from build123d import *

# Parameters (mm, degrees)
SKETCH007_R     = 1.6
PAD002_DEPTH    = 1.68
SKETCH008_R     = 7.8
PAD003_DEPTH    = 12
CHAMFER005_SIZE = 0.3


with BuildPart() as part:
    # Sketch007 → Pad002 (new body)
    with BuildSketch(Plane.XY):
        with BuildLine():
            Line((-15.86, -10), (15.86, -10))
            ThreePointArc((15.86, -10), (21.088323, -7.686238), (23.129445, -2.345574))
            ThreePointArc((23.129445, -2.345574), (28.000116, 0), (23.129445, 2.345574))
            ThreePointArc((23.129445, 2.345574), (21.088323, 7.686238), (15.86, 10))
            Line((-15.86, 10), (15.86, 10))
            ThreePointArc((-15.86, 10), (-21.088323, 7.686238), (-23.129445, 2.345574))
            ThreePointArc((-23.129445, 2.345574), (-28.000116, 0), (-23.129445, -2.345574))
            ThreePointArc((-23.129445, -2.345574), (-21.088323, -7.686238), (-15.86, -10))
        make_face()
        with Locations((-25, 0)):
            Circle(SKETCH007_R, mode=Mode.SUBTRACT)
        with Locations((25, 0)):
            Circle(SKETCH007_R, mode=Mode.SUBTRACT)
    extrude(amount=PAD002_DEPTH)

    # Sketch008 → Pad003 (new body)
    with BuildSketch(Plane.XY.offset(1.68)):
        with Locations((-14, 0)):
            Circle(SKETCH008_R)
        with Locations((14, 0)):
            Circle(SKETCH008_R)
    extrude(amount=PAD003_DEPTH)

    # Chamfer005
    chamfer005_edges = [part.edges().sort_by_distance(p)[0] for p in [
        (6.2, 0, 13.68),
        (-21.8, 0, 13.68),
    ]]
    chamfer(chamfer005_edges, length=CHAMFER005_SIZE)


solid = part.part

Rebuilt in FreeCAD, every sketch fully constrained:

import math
import FreeCAD as App
import Part
import Sketcher
from FreeCAD import Vector
Q = App.Units.Quantity


def edges_at(feature, points):
    """Names of the edges that pass closest to the given points."""
    edges = feature.Shape.Edges
    near = lambda p: min(range(len(edges)), key=lambda i: edges[i].distToShape(Part.Vertex(*p))[0])
    return sorted({f"Edge{near(p) + 1}" for p in points})

doc = App.newDocument("Part")
params = doc.addObject("Spreadsheet::Sheet", "Params")
for row, (alias, value) in enumerate([
    ("sketch1_diameter", "3.2 mm"),
    ("sketch1_width", "31.72 mm"),
    ("pad1_length", "1.68 mm"),
    ("sketch2_diameter", "15.6 mm"),
    ("pad2_length", "12 mm"),
    ("chamfer_size", "0.3 mm"),
], start=1):
    params.set(f"A{row}", alias)
    params.set(f"B{row}", "=" + value)
    params.setAlias(f"B{row}", alias)

body = doc.addObject("PartDesign::Body", "Body")

# Sketch on XY plane
sketch1 = doc.addObject("Sketcher::SketchObject", "Sketch")
body.addObject(sketch1)
sketch1.AttachmentSupport = (doc.XY_Plane, [""])
sketch1.MapMode = "FlatFace"
sketch1.addGeometry(Part.LineSegment(Vector(-15.9, -10, 0), Vector(15.9, -10, 0)), False)
sketch1.addGeometry(Part.ArcOfCircle(Part.Circle(Vector(15.7, -2.6, 0), Vector(0, 0, 1), 7.4), math.radians(-89), math.radians(2)), False)
sketch1.addGeometry(Part.ArcOfCircle(Part.Circle(Vector(25, 0, 0), Vector(0, 0, 1), 3), math.radians(-129), math.radians(129)), False)
sketch1.addGeometry(Part.ArcOfCircle(Part.Circle(Vector(15.7, 2.6, 0), Vector(0, 0, 1), 7.4), math.radians(-2), math.radians(89)), False)
sketch1.addGeometry(Part.LineSegment(Vector(15.9, 10, 0), Vector(-15.9, 10, 0)), False)
sketch1.addGeometry(Part.ArcOfCircle(Part.Circle(Vector(-15.7, 2.6, 0), Vector(0, 0, 1), 7.4), math.radians(91), math.radians(182)), False)
sketch1.addGeometry(Part.ArcOfCircle(Part.Circle(Vector(-25, 0, 0), Vector(0, 0, 1), 3), math.radians(51), math.radians(309)), False)
sketch1.addGeometry(Part.ArcOfCircle(Part.Circle(Vector(-15.7, -2.6, 0), Vector(0, 0, 1), 7.4), math.radians(178), math.radians(269)), False)
sketch1.addGeometry(Part.Circle(Vector(-25, 0, 0), Vector(0, 0, 1), 1.6), False)
sketch1.addGeometry(Part.Circle(Vector(25, 0, 0), Vector(0, 0, 1), 1.6), False)
sketch1.addConstraint(Sketcher.Constraint("Coincident", 0, 2, 1, 1))
sketch1.addConstraint(Sketcher.Constraint("Coincident", 1, 2, 2, 1))
sketch1.addConstraint(Sketcher.Constraint("Coincident", 2, 2, 3, 1))
sketch1.addConstraint(Sketcher.Constraint("Coincident", 3, 2, 4, 1))
sketch1.addConstraint(Sketcher.Constraint("Coincident", 4, 2, 5, 1))
sketch1.addConstraint(Sketcher.Constraint("Coincident", 5, 2, 6, 1))
sketch1.addConstraint(Sketcher.Constraint("Coincident", 6, 2, 7, 1))
sketch1.addConstraint(Sketcher.Constraint("Coincident", 7, 2, 0, 1))
sketch1.addConstraint(Sketcher.Constraint("Horizontal", 0))
sketch1.addConstraint(Sketcher.Constraint("Horizontal", 4))
sketch1.addConstraint(Sketcher.Constraint("Coincident", 8, 3, 6, 3))
sketch1.addConstraint(Sketcher.Constraint("Coincident", 9, 3, 2, 3))
sketch1.addConstraint(Sketcher.Constraint("Equal", 1, 3))
sketch1.addConstraint(Sketcher.Constraint("Equal", 3, 5))
sketch1.addConstraint(Sketcher.Constraint("Equal", 2, 6))
sketch1.addConstraint(Sketcher.Constraint("Equal", 5, 7))
sketch1.addConstraint(Sketcher.Constraint("Equal", 8, 9))
sketch1.addConstraint(Sketcher.Constraint("Symmetric", 1, 3, 5, 3, -1, 1))
sketch1.addConstraint(Sketcher.Constraint("Symmetric", 2, 3, 6, 3, -1, 1))
sketch1.addConstraint(Sketcher.Constraint("Symmetric", 3, 3, 7, 3, -1, 1))
sketch1.addConstraint(Sketcher.Constraint("Symmetric", 3, 3, 5, 3, -2))
sketch1.addConstraint(Sketcher.Constraint("PointOnObject", 2, 3, -1))
sketch1.addConstraint(Sketcher.Constraint("Vertical", 0, 2, 3, 2))
sketch1.addConstraint(Sketcher.Constraint("Diameter", 8, Q("3.2 mm")))
sketch1.addConstraint(Sketcher.Constraint("DistanceX", -1, 1, 2, 3, Q("25 mm")))
sketch1.addConstraint(Sketcher.Constraint("DistanceY", 0, 2, -1, 1, Q("10 mm")))
sketch1.addConstraint(Sketcher.Constraint("DistanceX", 0, 1, 0, 2, Q("31.72 mm")))
sketch1.addConstraint(Sketcher.Constraint("Radius", 1, Q("7.4369 mm")))
sketch1.addConstraint(Sketcher.Constraint("Radius", 2, Q("3.000116 mm")))
sketch1.addConstraint(Sketcher.Constraint("DistanceX", -1, 1, 1, 3, Q("15.695781 mm")))
sketch1.setExpression("Constraints[23]", "Params.sketch1_diameter")
sketch1.setExpression("Constraints[26]", "Params.sketch1_width")
pad1 = doc.addObject("PartDesign::Pad", "Pad")
body.addObject(pad1)
pad1.Profile = sketch1
pad1.setExpression("Length", "Params.pad1_length")

# Sketch on XY plane
sketch2 = doc.addObject("Sketcher::SketchObject", "Sketch001")
body.addObject(sketch2)
sketch2.AttachmentSupport = (doc.XY_Plane, [""])
sketch2.MapMode = "FlatFace"
sketch2.AttachmentOffset = App.Placement(Vector(0, 0, 1.68), App.Rotation())
sketch2.addGeometry(Part.Circle(Vector(-14, 0, 0), Vector(0, 0, 1), 8), False)
sketch2.addGeometry(Part.Circle(Vector(14, 0, 0), Vector(0, 0, 1), 8), False)
sketch2.addConstraint(Sketcher.Constraint("Equal", 0, 1))
sketch2.addConstraint(Sketcher.Constraint("Symmetric", 0, 3, 1, 3, -1, 1))
sketch2.addConstraint(Sketcher.Constraint("PointOnObject", 0, 3, -1))
sketch2.addConstraint(Sketcher.Constraint("Diameter", 0, Q("15.6 mm")))
sketch2.addConstraint(Sketcher.Constraint("DistanceX", 0, 3, -1, 1, Q("14 mm")))
sketch2.setExpression("Constraints[3]", "Params.sketch2_diameter")
pad2 = doc.addObject("PartDesign::Pad", "Pad001")
body.addObject(pad2)
pad2.Profile = sketch2
pad2.setExpression("Length", "Params.pad2_length")
doc.recompute()

chamfer = doc.addObject("PartDesign::Chamfer", "Chamfer")
body.addObject(chamfer)
chamfer.Base = (pad2, edges_at(pad2, [(6.2, 0, 13.68), (-21.8, 0, 13.68)]))
chamfer.setExpression("Size", "Params.chamfer_size")

doc.recompute()
